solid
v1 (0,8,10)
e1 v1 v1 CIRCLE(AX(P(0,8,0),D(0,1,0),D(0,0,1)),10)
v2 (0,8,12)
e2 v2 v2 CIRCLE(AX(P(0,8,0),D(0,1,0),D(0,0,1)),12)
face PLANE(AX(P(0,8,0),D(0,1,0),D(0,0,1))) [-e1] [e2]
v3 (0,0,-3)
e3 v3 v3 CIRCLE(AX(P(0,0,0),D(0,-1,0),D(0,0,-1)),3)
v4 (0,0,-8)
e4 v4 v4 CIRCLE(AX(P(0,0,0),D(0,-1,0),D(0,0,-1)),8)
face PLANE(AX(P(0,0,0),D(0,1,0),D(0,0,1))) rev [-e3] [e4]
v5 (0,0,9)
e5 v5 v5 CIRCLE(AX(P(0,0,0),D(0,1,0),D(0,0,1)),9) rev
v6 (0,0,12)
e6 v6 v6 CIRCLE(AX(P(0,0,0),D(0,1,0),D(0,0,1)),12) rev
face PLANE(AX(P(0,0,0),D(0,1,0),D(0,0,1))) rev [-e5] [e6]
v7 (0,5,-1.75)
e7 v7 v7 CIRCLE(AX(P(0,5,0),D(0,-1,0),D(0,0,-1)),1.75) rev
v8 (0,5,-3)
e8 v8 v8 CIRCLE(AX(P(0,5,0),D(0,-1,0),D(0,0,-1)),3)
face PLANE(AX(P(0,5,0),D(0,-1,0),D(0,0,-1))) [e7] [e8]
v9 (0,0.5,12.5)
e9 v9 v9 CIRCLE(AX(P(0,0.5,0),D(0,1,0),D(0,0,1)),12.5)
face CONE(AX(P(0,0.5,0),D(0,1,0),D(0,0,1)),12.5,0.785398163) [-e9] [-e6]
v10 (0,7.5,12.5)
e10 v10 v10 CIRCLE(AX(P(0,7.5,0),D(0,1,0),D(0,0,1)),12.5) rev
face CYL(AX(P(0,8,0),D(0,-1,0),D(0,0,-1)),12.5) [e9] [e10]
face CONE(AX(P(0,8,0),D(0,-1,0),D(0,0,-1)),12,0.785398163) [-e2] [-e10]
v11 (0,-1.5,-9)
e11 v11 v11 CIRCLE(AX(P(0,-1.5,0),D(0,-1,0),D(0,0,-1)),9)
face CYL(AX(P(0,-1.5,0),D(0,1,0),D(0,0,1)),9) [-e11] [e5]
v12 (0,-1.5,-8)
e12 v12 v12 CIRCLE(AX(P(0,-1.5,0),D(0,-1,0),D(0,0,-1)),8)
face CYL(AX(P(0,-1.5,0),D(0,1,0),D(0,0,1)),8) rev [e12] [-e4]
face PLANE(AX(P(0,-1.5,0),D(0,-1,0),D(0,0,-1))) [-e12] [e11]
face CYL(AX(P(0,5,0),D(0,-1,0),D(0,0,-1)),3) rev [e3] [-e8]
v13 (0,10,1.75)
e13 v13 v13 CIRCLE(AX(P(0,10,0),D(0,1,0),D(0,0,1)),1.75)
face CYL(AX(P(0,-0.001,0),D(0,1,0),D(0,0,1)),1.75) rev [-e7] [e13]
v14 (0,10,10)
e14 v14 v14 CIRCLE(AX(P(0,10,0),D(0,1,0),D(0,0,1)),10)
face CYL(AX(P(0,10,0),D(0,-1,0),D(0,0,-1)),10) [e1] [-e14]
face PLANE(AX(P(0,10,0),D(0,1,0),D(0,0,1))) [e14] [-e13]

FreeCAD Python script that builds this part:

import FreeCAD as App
import Part
import Sketcher
from FreeCAD import Vector
Q = App.Units.Quantity


def edges_at(feature, points):
    """Names of the edges that pass closest to the given points."""
    edges = feature.Shape.Edges
    near = lambda p: min(range(len(edges)), key=lambda i: edges[i].distToShape(Part.Vertex(*p))[0])
    return sorted({f"Edge{near(p) + 1}" for p in points})

doc = App.newDocument("Part")
body = doc.addObject("PartDesign::Body", "Body")

# Sketch on XZ plane
sketch1 = body.newObject("Sketcher::SketchObject", "Sketch")
sketch1.AttachmentSupport = (doc.getObject("XZ_Plane"), [""])
sketch1.MapMode = "FlatFace"
sketch1.addGeometry(Part.Circle(Vector(0, 0, 0), Vector(0, 0, 1), 12), False)
sketch1.addConstraint(Sketcher.Constraint("Coincident", 0, 3, -1, 1))
sketch1.addConstraint(Sketcher.Constraint("Diameter", 0, Q("25 mm")))
pad1 = body.newObject("PartDesign::Pad", "Pad")
pad1.Profile = sketch1
pad1.Length = 8
pad1.Reversed = True

# Sketch on XZ plane
sketch2 = body.newObject("Sketcher::SketchObject", "Sketch001")
sketch2.AttachmentSupport = (doc.getObject("XZ_Plane"), [""])
sketch2.MapMode = "FlatFace"
sketch2.AttachmentOffset = App.Placement(Vector(0, 0, -8), App.Rotation())
sketch2.addGeometry(Part.Circle(Vector(0, 0, 0), Vector(0, 0, 1), 10), False)
sketch2.addConstraint(Sketcher.Constraint("Coincident", 0, 3, -1, 1))
sketch2.addConstraint(Sketcher.Constraint("Diameter", 0, Q("20 mm")))
pad2 = body.newObject("PartDesign::Pad", "Pad001")
pad2.Profile = sketch2
pad2.Length = 2
pad2.Reversed = True

# Sketch on XZ plane
sketch3 = body.newObject("Sketcher::SketchObject", "Sketch002")
sketch3.AttachmentSupport = (doc.getObject("XZ_Plane"), [""])
sketch3.MapMode = "FlatFace"
sketch3.AttachmentOffset = App.Placement(Vector(0, 0, -10), App.Rotation())
sketch3.addGeometry(Part.Circle(Vector(0, 0, 0), Vector(0, 0, 1), 1.8), False)
sketch3.addConstraint(Sketcher.Constraint("Coincident", 0, 3, -1, 1))
sketch3.addConstraint(Sketcher.Constraint("Diameter", 0, Q("3.5 mm")))
pocket1 = body.newObject("PartDesign::Pocket", "Pocket")
pocket1.Profile = sketch3
pocket1.Type = "UpToFirst"
pocket1.Reversed = True

# Sketch on XZ plane
sketch4 = body.newObject("Sketcher::SketchObject", "Sketch003")
sketch4.AttachmentSupport = (doc.getObject("XZ_Plane"), [""])
sketch4.MapMode = "FlatFace"
sketch4.addGeometry(Part.Circle(Vector(0, 0, 0), Vector(0, 0, 1), 3), False)
sketch4.addConstraint(Sketcher.Constraint("Coincident", 0, 3, -1, 1))
sketch4.addConstraint(Sketcher.Constraint("Diameter", 0, Q("6 mm")))
pocket2 = body.newObject("PartDesign::Pocket", "Pocket001")
pocket2.Profile = sketch4
pocket2.Length = 5

# Sketch on XZ plane
sketch5 = body.newObject("Sketcher::SketchObject", "Sketch004")
sketch5.AttachmentSupport = (doc.getObject("XZ_Plane"), [""])
sketch5.MapMode = "FlatFace"
sketch5.addGeometry(Part.Circle(Vector(0, 0, 0), Vector(0, 0, 1), 9), False)
sketch5.addGeometry(Part.Circle(Vector(0, 0, 0), Vector(0, 0, 1), 8), False)
sketch5.addConstraint(Sketcher.Constraint("Coincident", 0, 3, -1, 1))
sketch5.addConstraint(Sketcher.Constraint("Coincident", 1, 3, -1, 1))
sketch5.addConstraint(Sketcher.Constraint("Diameter", 0, Q("18 mm")))
sketch5.addConstraint(Sketcher.Constraint("Diameter", 1, Q("16 mm")))
pad3 = body.newObject("PartDesign::Pad", "Pad002")
pad3.Profile = sketch5
pad3.Length = 1.5
doc.recompute()

chamfer = body.newObject("PartDesign::Chamfer", "Chamfer")
chamfer.Base = (pad3, edges_at(pad3, [(0, 0, -12.5), (0, 8, -12.5)]))
chamfer.Size = 0.5

doc.recompute()
